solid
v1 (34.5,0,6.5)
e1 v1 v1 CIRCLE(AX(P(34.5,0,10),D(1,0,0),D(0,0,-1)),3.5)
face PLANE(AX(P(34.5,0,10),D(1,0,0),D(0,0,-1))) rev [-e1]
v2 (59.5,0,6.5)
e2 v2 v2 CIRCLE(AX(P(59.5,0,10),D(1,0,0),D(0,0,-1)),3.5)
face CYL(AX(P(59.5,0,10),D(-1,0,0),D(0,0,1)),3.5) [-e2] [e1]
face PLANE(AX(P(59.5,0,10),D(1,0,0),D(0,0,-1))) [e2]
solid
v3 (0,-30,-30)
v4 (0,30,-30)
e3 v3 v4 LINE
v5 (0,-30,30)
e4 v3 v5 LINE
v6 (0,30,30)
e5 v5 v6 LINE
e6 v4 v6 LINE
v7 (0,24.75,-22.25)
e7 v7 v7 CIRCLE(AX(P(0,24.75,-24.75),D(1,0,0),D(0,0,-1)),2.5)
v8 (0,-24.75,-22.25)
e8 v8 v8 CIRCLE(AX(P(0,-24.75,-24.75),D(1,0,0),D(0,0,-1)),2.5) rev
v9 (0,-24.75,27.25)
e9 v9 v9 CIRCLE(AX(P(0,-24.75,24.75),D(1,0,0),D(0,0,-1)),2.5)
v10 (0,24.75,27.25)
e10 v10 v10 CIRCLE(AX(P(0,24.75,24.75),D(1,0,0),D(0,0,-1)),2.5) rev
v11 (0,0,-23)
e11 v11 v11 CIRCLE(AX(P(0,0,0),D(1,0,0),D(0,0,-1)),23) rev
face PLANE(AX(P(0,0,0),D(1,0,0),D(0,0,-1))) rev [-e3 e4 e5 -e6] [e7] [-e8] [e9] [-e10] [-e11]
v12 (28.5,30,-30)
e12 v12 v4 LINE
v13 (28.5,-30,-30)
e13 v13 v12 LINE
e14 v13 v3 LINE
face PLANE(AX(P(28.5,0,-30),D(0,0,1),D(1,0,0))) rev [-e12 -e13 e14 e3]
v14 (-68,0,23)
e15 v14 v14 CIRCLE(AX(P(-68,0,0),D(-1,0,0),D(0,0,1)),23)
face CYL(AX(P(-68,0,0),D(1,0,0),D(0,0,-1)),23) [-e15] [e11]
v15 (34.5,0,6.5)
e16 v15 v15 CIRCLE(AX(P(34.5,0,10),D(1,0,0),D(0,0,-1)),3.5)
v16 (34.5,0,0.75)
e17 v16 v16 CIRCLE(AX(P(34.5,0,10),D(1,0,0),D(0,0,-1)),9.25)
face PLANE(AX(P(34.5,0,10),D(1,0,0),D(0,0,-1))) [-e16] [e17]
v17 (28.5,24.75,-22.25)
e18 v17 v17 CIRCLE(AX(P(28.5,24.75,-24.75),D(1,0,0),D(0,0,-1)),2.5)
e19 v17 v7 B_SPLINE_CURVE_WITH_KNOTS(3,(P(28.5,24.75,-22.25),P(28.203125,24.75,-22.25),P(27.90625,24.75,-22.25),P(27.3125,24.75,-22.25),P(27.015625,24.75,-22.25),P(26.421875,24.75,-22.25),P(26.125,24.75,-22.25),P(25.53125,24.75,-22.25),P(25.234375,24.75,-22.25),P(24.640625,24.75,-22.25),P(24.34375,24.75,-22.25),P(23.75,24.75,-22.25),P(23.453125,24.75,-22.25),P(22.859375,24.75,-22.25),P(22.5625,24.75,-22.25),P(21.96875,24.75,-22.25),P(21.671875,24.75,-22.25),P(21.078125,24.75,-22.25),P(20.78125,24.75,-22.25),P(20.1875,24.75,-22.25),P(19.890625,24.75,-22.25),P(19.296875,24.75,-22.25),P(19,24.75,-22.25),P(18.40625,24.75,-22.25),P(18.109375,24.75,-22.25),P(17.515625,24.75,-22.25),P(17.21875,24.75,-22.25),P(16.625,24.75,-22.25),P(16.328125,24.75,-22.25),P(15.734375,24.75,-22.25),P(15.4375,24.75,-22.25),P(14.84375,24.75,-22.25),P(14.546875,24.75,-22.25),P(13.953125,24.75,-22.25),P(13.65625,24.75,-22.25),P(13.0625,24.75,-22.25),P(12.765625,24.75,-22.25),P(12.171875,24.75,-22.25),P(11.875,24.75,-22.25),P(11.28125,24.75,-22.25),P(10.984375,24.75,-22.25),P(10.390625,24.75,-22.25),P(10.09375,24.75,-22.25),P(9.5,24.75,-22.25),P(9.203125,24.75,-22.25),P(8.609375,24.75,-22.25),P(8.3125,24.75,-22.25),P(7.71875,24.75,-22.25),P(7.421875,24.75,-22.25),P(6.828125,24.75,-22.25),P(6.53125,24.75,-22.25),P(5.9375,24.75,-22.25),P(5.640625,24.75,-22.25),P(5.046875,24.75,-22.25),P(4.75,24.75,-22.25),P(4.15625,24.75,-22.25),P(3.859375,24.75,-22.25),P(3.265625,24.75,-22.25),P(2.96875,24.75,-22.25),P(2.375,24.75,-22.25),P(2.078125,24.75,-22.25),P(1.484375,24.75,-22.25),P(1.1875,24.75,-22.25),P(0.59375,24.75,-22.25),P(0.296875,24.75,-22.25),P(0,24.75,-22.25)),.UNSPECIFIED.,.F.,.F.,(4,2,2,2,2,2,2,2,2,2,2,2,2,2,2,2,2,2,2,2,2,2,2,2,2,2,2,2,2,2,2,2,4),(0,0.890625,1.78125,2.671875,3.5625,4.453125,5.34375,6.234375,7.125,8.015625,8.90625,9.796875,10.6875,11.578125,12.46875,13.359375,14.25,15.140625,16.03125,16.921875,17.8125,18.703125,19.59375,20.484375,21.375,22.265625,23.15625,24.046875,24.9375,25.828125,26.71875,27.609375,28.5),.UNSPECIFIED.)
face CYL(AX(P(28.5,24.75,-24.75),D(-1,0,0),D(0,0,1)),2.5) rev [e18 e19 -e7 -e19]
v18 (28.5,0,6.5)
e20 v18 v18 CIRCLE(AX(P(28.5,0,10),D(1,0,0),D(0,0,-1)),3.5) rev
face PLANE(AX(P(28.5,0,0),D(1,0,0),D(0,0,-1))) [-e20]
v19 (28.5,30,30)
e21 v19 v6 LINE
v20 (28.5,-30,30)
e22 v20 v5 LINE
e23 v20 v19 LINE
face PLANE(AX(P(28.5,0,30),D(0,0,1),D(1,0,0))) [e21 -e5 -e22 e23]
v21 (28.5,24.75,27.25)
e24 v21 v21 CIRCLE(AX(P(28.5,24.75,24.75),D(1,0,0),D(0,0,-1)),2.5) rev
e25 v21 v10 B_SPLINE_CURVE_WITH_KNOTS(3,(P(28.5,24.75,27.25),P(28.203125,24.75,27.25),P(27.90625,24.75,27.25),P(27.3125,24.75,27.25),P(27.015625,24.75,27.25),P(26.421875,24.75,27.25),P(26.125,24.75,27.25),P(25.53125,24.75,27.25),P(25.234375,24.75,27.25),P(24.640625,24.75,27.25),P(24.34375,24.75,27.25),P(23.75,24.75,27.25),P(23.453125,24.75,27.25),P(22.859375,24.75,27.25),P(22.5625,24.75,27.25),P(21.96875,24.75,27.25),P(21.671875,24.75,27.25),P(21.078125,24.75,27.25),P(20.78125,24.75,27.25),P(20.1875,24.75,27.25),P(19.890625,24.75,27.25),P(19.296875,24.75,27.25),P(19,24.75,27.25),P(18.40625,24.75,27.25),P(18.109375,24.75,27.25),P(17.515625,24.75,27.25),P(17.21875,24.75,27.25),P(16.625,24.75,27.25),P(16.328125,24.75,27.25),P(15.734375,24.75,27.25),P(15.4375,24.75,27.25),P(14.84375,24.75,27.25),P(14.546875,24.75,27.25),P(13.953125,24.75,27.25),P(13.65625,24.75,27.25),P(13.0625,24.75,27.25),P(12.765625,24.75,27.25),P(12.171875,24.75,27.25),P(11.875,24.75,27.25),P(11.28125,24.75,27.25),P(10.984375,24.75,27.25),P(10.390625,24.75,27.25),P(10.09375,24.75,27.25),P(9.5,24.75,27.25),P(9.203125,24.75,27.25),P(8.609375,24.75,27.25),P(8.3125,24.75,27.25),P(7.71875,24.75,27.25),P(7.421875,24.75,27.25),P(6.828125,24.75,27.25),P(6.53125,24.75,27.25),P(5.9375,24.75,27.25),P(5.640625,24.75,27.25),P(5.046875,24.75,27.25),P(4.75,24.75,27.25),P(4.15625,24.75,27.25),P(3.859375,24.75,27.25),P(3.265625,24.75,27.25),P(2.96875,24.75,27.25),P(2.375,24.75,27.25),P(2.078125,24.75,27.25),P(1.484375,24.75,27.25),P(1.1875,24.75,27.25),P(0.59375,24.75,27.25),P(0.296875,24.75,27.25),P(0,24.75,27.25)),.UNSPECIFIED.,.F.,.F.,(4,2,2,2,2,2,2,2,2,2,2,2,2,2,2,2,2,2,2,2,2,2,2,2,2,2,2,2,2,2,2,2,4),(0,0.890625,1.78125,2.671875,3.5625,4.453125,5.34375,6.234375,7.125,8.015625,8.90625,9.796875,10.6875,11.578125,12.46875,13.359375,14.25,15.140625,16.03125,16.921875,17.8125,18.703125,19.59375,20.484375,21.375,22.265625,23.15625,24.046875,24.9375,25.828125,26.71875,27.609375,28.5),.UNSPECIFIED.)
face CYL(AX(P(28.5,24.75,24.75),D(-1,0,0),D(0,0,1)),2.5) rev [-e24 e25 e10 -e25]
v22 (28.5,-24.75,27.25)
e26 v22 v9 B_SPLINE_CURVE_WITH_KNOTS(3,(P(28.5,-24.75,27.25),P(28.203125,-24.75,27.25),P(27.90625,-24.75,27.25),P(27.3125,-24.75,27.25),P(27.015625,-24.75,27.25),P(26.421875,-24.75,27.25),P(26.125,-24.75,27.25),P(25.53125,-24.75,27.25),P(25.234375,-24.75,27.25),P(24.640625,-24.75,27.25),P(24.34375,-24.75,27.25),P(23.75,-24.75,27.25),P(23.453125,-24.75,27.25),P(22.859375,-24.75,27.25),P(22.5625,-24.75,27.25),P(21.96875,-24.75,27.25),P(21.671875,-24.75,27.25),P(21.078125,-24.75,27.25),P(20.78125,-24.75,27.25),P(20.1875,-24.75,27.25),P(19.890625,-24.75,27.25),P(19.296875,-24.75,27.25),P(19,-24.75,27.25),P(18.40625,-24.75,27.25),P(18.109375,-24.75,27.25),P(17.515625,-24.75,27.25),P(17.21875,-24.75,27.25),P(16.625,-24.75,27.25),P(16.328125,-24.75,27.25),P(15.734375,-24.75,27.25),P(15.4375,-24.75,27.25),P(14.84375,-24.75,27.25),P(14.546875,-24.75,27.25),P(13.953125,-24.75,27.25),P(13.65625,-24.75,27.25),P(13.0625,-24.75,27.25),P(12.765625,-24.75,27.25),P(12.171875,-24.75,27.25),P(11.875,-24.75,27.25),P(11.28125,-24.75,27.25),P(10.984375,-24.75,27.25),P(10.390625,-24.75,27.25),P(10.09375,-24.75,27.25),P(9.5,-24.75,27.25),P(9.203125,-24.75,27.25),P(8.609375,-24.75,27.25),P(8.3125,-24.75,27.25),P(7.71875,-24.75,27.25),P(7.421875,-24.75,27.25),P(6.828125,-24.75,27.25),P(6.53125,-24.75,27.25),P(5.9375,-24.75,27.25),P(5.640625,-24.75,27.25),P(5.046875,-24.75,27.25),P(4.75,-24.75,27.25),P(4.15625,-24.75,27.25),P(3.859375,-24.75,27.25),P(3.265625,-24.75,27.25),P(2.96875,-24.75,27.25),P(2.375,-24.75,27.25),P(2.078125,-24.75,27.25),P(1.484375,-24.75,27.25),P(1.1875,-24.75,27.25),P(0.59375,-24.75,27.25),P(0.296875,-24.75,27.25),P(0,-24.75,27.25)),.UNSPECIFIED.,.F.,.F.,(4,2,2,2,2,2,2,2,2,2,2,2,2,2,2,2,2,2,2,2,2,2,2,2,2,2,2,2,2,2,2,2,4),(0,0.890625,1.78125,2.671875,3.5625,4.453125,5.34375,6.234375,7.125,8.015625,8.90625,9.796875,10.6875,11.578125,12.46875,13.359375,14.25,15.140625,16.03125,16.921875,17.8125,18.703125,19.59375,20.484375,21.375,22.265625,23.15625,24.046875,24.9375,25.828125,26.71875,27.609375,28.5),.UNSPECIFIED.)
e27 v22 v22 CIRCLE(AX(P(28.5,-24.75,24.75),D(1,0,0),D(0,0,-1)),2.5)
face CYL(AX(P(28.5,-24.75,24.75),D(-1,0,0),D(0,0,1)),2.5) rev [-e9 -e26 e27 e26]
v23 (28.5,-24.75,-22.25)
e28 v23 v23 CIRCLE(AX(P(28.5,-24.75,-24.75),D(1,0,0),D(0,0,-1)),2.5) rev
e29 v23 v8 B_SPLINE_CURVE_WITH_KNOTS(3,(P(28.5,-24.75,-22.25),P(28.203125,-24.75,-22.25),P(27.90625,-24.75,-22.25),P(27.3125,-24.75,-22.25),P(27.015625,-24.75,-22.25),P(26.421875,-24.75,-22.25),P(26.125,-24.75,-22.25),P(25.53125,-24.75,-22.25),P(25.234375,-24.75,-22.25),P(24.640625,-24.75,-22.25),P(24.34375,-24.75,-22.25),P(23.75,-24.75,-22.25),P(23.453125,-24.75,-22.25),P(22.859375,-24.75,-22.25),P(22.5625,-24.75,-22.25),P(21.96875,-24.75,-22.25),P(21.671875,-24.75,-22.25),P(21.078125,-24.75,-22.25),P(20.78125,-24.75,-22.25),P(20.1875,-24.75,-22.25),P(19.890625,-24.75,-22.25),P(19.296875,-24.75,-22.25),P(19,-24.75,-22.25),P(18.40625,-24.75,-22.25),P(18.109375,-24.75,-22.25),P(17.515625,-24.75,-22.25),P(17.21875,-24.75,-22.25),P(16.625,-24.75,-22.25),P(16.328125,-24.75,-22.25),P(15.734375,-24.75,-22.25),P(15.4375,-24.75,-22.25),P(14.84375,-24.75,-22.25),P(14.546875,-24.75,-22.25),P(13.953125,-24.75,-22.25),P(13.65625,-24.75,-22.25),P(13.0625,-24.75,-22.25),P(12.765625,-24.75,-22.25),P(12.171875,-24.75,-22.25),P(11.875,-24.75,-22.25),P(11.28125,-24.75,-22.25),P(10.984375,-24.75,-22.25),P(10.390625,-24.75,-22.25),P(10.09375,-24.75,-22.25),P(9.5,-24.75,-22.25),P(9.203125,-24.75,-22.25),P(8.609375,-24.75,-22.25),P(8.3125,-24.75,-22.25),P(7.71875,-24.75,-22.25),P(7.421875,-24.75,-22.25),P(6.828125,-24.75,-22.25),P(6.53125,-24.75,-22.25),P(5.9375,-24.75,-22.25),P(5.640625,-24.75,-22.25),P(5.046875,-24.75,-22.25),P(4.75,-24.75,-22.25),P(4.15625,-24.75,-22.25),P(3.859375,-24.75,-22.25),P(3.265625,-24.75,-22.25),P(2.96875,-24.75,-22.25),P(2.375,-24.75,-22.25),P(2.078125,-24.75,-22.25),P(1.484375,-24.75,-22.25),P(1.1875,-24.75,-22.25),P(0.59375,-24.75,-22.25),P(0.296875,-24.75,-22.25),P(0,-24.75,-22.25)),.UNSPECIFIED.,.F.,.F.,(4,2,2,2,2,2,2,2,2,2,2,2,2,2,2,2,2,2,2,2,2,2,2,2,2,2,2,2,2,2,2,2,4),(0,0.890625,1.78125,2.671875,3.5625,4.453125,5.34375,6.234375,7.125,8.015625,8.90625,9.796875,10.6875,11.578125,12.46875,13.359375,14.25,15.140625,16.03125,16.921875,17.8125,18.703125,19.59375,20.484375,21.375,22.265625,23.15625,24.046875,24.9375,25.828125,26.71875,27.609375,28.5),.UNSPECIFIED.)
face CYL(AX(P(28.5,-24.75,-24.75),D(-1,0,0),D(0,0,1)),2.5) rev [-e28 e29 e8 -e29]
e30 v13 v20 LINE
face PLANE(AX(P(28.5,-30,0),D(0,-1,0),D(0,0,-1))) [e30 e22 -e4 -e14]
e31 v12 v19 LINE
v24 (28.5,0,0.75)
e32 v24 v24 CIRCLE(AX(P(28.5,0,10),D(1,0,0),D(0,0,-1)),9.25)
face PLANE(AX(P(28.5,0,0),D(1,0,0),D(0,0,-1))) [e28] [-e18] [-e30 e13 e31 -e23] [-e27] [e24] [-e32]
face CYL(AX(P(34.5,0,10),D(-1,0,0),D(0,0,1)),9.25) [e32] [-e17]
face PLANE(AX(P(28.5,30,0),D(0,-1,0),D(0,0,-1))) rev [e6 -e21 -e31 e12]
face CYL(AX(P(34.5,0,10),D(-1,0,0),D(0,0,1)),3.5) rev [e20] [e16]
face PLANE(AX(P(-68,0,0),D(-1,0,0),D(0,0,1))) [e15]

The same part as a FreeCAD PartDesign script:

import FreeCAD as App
import Part
import Sketcher
from FreeCAD import Vector
Q = App.Units.Quantity


def add_polygon(sketch, points):
    """Adds a closed chain of lines whose ends are joined by coincident constraints."""
    first, n = sketch.GeometryCount, len(points)
    for a, b in zip(points, points[1:] + points[:1]):
        sketch.addGeometry(Part.LineSegment(App.Vector(*a, 0), App.Vector(*b, 0)), False)
    for i in range(n):
        sketch.addConstraint(Sketcher.Constraint("Coincident", first + i, 2, first + (i + 1) % n, 1))

doc = App.newDocument("Part")
params = doc.addObject("Spreadsheet::Sheet", "Params")
for row, (alias, value) in enumerate([
    ("sketch1_diameter", "5 mm"),
    ("sketch1_width", "60 mm"),
    ("pad1_length", "28.5 mm"),
    ("sketch2_diameter", "7 mm"),
    ("sketch2_diameter2", "18.5 mm"),
    ("pad2_length", "6 mm"),
    ("sketch3_diameter", "46 mm"),
    ("pad3_length", "68 mm"),
    ("sketch4_diameter", "7 mm"),
    ("pad4_length", "25 mm"),
], start=1):
    params.set(f"A{row}", alias)
    params.set(f"B{row}", "=" + value)
    params.setAlias(f"B{row}", alias)

body = doc.addObject("PartDesign::Body", "Body")

sketch1 = doc.addObject("Sketcher::SketchObject", "Sketch")
body.addObject(sketch1)
sketch1.AttachmentSupport = (doc.YZ_Plane, [""])
sketch1.MapMode = "FlatFace"
add_polygon(sketch1, [(-30, 30), (-30, -30), (30, -30), (30, 30)])
sketch1.addGeometry(Part.Circle(Vector(-24.8, -24.8, 0), Vector(0, 0, 1), 2.5), False)
sketch1.addGeometry(Part.Circle(Vector(24.8, -24.8, 0), Vector(0, 0, 1), 2.5), False)
sketch1.addGeometry(Part.Circle(Vector(-24.8, 24.8, 0), Vector(0, 0, 1), 2.5), False)
sketch1.addGeometry(Part.Circle(Vector(24.8, 24.8, 0), Vector(0, 0, 1), 2.5), False)
sketch1.addConstraint(Sketcher.Constraint("Vertical", 0))
sketch1.addConstraint(Sketcher.Constraint("Horizontal", 1))
sketch1.addConstraint(Sketcher.Constraint("Vertical", 2))
sketch1.addConstraint(Sketcher.Constraint("Horizontal", 3))
sketch1.addConstraint(Sketcher.Constraint("Equal", 4, 5))
sketch1.addConstraint(Sketcher.Constraint("Equal", 5, 6))
sketch1.addConstraint(Sketcher.Constraint("Equal", 6, 7))
sketch1.addConstraint(Sketcher.Constraint("Symmetric", 5, 3, 6, 3, -1, 1))
sketch1.addConstraint(Sketcher.Constraint("Symmetric", 4, 3, 7, 3, -1, 1))
sketch1.addConstraint(Sketcher.Constraint("Symmetric", 0, 2, 2, 2, -1, 1))
sketch1.addConstraint(Sketcher.Constraint("Symmetric", 4, 3, 5, 3, -2))
sketch1.addConstraint(Sketcher.Constraint("Equal", 3, 0))
sketch1.addConstraint(Sketcher.Constraint("Diameter", 4, Q("5 mm")))
sketch1.addConstraint(Sketcher.Constraint("DistanceX", 1, 1, 1, 2, Q("60 mm")))
sketch1.addConstraint(Sketcher.Constraint("DistanceX", 4, 3, 5, 3, Q("49.5 mm")))
sketch1.addConstraint(Sketcher.Constraint("DistanceY", 4, 3, 6, 3, Q("49.5 mm")))
sketch1.setExpression("Constraints[16]", "Params.sketch1_diameter")
sketch1.setExpression("Constraints[17]", "Params.sketch1_width")
pad1 = doc.addObject("PartDesign::Pad", "Pad")
body.addObject(pad1)
pad1.Profile = sketch1
pad1.setExpression("Length", "Params.pad1_length")

sketch2 = doc.addObject("Sketcher::SketchObject", "Sketch001")
body.addObject(sketch2)
sketch2.AttachmentSupport = (doc.YZ_Plane, [""])
sketch2.MapMode = "FlatFace"
sketch2.AttachmentOffset = App.Placement(Vector(0, 0, 28.5), App.Rotation())
sketch2.addGeometry(Part.Circle(Vector(0, 10, 0), Vector(0, 0, 1), 9.2), False)
sketch2.addGeometry(Part.Circle(Vector(0, 10, 0), Vector(0, 0, 1), 3.5), False)
sketch2.addConstraint(Sketcher.Constraint("Coincident", 1, 3, 0, 3))
sketch2.addConstraint(Sketcher.Constraint("PointOnObject", 0, 3, -2))
sketch2.addConstraint(Sketcher.Constraint("Diameter", 1, Q("7 mm")))
sketch2.addConstraint(Sketcher.Constraint("Diameter", 0, Q("18.5 mm")))
sketch2.addConstraint(Sketcher.Constraint("DistanceY", -1, 1, 0, 3, Q("10 mm")))
sketch2.setExpression("Constraints[2]", "Params.sketch2_diameter")
sketch2.setExpression("Constraints[3]", "Params.sketch2_diameter2")
pad2 = doc.addObject("PartDesign::Pad", "Pad001")
body.addObject(pad2)
pad2.Profile = sketch2
pad2.setExpression("Length", "Params.pad2_length")

sketch3 = doc.addObject("Sketcher::SketchObject", "Sketch002")
body.addObject(sketch3)
sketch3.AttachmentSupport = (doc.YZ_Plane, [""])
sketch3.MapMode = "FlatFace"
sketch3.addGeometry(Part.Circle(Vector(0, 0, 0), Vector(0, 0, 1), 23), False)
sketch3.addConstraint(Sketcher.Constraint("Coincident", 0, 3, -1, 1))
sketch3.addConstraint(Sketcher.Constraint("Diameter", 0, Q("46 mm")))
sketch3.setExpression("Constraints[1]", "Params.sketch3_diameter")
pad3 = doc.addObject("PartDesign::Pad", "Pad002")
body.addObject(pad3)
pad3.Profile = sketch3
pad3.setExpression("Length", "Params.pad3_length")
pad3.Reversed = True
body2 = doc.addObject("PartDesign::Body", "Body001")

sketch4 = doc.addObject("Sketcher::SketchObject", "Sketch003")
body2.addObject(sketch4)
sketch4.AttachmentSupport = (doc.getObject("YZ_Plane001"), [""])
sketch4.MapMode = "FlatFace"
sketch4.AttachmentOffset = App.Placement(Vector(0, 0, 34.5), App.Rotation())
sketch4.addGeometry(Part.Circle(Vector(0, 10, 0), Vector(0, 0, 1), 3.5), False)
sketch4.addConstraint(Sketcher.Constraint("PointOnObject", 0, 3, -2))
sketch4.addConstraint(Sketcher.Constraint("Diameter", 0, Q("7 mm")))
sketch4.addConstraint(Sketcher.Constraint("DistanceY", -1, 1, 0, 3, Q("10 mm")))
sketch4.setExpression("Constraints[1]", "Params.sketch4_diameter")
pad4 = doc.addObject("PartDesign::Pad", "Pad003")
body2.addObject(pad4)
pad4.Profile = sketch4
pad4.setExpression("Length", "Params.pad4_length")

doc.recompute()
